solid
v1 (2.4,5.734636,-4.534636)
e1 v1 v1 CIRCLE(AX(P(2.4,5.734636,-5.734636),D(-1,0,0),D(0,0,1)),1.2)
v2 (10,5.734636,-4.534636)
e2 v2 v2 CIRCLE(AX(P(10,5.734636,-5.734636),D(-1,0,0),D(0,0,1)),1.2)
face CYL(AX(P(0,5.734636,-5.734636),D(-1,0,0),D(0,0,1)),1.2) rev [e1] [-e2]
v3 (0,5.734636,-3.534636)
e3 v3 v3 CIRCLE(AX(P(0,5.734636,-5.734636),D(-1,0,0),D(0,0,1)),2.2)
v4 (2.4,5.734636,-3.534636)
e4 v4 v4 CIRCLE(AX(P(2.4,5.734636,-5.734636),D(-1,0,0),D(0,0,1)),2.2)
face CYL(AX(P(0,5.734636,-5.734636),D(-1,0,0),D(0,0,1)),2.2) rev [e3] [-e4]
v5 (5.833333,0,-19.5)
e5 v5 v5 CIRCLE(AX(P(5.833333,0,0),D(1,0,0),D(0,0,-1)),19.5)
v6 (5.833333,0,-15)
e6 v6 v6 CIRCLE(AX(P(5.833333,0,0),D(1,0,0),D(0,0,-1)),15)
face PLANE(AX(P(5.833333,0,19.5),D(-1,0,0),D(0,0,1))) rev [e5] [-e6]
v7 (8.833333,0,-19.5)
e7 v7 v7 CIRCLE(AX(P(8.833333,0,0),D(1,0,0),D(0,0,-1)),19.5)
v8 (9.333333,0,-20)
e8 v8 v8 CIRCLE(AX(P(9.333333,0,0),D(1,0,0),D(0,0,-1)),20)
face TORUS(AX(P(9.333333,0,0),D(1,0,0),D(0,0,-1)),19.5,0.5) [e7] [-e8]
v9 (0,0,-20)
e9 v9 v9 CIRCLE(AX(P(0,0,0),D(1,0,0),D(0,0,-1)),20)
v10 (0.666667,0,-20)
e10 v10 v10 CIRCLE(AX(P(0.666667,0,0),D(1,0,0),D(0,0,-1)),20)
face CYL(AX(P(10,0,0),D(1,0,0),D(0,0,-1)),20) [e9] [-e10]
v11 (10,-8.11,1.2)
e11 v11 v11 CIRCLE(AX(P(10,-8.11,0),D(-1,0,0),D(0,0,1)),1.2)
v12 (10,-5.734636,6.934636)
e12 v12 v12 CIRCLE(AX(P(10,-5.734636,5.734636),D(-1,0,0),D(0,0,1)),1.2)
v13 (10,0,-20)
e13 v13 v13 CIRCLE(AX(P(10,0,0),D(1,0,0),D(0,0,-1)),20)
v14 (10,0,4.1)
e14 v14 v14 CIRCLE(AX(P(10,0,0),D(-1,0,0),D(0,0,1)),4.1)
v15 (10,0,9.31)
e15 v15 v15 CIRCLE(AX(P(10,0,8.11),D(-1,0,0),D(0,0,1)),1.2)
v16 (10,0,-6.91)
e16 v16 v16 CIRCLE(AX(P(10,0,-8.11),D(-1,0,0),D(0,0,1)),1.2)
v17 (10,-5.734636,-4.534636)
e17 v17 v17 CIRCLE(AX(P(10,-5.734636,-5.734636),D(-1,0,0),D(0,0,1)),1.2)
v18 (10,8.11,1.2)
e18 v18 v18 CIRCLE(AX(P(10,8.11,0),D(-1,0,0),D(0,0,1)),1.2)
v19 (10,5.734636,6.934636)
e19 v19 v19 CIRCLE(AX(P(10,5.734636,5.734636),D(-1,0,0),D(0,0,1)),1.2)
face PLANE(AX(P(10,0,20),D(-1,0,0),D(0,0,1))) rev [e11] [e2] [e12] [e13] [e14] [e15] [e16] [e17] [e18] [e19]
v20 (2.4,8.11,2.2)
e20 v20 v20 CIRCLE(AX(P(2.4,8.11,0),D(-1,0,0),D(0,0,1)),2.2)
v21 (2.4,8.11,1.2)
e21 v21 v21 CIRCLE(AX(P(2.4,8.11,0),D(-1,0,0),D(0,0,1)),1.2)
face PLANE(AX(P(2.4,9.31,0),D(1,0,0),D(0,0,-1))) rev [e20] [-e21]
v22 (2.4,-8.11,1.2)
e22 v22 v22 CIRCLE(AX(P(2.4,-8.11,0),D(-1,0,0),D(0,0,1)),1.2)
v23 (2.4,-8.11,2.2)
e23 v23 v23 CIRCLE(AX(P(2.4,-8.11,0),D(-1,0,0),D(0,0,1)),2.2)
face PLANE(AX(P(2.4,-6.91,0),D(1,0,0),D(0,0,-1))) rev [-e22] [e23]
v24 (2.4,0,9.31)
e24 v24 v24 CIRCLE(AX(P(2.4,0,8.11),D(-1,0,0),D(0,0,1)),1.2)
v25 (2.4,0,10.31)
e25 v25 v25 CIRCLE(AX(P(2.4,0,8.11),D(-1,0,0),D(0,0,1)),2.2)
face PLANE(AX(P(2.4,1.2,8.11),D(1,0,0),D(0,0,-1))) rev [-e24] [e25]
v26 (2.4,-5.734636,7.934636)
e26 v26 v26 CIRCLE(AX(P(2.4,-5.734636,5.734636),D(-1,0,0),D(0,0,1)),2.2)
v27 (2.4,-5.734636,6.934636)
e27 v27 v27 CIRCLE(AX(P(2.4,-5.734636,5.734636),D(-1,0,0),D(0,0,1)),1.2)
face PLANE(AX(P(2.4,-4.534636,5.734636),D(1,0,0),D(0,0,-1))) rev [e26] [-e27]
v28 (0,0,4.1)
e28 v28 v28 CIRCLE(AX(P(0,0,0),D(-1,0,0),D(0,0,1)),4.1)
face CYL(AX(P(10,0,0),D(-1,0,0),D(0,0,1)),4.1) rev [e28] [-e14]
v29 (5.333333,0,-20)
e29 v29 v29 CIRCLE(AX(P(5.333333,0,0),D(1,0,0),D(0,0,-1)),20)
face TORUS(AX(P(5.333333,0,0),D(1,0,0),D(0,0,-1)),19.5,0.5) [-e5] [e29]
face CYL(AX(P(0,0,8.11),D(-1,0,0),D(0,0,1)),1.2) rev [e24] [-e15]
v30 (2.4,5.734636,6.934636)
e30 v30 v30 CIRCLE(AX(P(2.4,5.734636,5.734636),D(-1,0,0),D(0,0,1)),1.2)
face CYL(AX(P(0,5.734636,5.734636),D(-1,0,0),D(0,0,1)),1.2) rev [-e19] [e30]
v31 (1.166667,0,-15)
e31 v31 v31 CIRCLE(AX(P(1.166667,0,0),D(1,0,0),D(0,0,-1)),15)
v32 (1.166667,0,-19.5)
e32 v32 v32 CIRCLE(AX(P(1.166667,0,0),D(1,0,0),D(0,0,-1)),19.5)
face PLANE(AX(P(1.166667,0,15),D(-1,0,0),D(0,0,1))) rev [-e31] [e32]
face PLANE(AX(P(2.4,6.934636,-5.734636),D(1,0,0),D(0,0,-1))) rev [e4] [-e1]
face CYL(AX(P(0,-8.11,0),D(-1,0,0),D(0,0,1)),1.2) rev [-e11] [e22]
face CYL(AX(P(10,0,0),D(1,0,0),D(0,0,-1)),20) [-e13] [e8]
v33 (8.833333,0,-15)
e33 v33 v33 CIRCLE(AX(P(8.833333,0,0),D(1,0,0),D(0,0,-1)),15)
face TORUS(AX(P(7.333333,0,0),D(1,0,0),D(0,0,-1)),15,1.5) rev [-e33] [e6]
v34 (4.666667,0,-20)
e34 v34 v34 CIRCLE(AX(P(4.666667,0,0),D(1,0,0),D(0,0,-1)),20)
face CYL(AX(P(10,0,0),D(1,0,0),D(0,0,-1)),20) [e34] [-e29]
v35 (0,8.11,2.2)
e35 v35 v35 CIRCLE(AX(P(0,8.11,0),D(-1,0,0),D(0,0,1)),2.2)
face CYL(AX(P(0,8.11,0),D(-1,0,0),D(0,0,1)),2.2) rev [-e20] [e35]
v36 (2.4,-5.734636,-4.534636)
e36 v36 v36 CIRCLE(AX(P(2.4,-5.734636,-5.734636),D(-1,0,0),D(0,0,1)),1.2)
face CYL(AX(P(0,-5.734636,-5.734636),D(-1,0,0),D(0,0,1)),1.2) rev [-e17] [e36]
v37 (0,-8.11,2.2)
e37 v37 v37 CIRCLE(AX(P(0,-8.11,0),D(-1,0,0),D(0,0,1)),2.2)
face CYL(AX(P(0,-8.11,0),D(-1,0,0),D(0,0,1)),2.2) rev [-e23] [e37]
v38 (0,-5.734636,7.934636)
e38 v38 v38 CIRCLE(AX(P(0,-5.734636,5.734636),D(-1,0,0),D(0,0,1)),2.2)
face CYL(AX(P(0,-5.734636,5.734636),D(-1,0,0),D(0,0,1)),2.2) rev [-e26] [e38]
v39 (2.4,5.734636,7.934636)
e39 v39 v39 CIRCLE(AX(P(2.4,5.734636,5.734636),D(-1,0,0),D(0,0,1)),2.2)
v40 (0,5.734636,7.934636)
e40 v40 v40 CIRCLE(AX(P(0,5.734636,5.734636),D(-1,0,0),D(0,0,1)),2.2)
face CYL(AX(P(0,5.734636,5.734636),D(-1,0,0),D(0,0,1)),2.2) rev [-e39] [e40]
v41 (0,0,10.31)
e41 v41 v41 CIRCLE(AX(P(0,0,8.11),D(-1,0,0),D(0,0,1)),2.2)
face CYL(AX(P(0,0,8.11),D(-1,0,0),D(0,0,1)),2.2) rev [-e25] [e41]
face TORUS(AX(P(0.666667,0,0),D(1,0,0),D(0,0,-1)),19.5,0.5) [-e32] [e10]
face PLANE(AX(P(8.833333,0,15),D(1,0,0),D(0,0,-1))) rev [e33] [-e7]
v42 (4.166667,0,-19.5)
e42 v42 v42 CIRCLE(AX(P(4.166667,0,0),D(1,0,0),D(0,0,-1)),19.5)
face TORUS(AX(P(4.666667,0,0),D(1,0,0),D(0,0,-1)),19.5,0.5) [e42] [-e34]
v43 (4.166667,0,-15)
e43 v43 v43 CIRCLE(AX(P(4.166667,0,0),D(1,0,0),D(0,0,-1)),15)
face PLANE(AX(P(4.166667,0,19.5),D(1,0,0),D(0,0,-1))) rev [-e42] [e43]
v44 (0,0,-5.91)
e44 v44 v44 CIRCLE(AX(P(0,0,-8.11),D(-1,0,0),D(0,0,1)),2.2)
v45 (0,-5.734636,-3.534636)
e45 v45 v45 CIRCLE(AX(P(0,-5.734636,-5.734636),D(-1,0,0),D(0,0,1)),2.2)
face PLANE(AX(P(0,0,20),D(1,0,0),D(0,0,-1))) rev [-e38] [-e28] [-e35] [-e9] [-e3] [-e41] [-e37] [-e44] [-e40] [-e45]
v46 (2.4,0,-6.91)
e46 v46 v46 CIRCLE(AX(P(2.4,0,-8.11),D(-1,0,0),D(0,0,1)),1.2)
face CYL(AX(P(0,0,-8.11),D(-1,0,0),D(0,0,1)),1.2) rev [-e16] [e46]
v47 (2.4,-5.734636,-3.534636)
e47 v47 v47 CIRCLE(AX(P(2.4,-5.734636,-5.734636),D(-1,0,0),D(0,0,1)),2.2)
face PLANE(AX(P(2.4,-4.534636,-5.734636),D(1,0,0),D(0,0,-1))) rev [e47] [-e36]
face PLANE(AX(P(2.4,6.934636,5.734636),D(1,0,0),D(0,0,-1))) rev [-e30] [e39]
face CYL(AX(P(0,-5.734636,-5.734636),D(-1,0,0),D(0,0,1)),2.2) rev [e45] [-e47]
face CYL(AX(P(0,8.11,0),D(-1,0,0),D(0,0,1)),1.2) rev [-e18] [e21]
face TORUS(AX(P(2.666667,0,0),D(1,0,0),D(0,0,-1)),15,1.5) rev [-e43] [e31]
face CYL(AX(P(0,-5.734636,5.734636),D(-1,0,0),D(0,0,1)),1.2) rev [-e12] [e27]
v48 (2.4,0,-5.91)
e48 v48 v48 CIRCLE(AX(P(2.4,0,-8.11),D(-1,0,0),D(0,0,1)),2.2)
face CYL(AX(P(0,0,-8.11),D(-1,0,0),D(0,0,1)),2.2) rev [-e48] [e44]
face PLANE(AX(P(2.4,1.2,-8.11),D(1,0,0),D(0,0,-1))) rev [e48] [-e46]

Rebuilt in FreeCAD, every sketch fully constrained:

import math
import FreeCAD as App
import Part
import Sketcher
from FreeCAD import Vector

doc = App.newDocument("Part")
body = doc.addObject("PartDesign::Body", "Body")

# Sketch on XZ plane
sketch1 = body.newObject("Sketcher::SketchObject", "Sketch")
sketch1.AttachmentSupport = (doc.getObject("XZ_Plane"), [""])
sketch1.MapMode = "FlatFace"
sketch1.addGeometry([
    Part.LineSegment(Vector(10, 0, 0), Vector(0, 0, 0)),  # 0
    Part.LineSegment(Vector(0, 0, 0), Vector(0, 20, 0)),  # 1
    Part.LineSegment(Vector(0, 20, 0), Vector(0.67, 20, 0)),  # 2
    Part.ArcOfCircle(Part.Circle(Vector(0.67, 19.5, 0), Vector(0, 0, 1), 0.5), math.radians(0), math.radians(90)),  # 3
    Part.LineSegment(Vector(1.17, 19.5, 0), Vector(1.17, 15, 0)),  # 4
    Part.ArcOfCircle(Part.Circle(Vector(2.67, 15, 0), Vector(0, 0, 1), 1.5), math.radians(180), math.radians(360)),  # 5
    Part.LineSegment(Vector(4.17, 15, 0), Vector(4.17, 19.5, 0)),  # 6
    Part.ArcOfCircle(Part.Circle(Vector(4.67, 19.5, 0), Vector(0, 0, 1), 0.5), math.radians(90), math.radians(180)),  # 7
    Part.LineSegment(Vector(4.67, 20, 0), Vector(5.33, 20, 0)),  # 8
    Part.ArcOfCircle(Part.Circle(Vector(5.33, 19.5, 0), Vector(0, 0, 1), 0.5), math.radians(0), math.radians(90)),  # 9
    Part.LineSegment(Vector(5.83, 19.5, 0), Vector(5.83, 15, 0)),  # 10
    Part.ArcOfCircle(Part.Circle(Vector(7.33, 15, 0), Vector(0, 0, 1), 1.5), math.radians(180), math.radians(360)),  # 11
    Part.LineSegment(Vector(8.83, 15, 0), Vector(8.83, 19.5, 0)),  # 12
    Part.ArcOfCircle(Part.Circle(Vector(9.33, 19.5, 0), Vector(0, 0, 1), 0.5), math.radians(90), math.radians(180)),  # 13
    Part.LineSegment(Vector(9.33, 20, 0), Vector(10, 20, 0)),  # 14
    Part.LineSegment(Vector(10, 20, 0), Vector(10, 0, 0)),  # 15
], False)
sketch1.addConstraint([
    Sketcher.Constraint("Coincident", 0, 2, 1, 1),
    Sketcher.Constraint("Coincident", 1, 2, 2, 1),
    Sketcher.Constraint("Tangent", 2, 2, 3, 2),
    Sketcher.Constraint("Tangent", 3, 1, 4, 1),
    Sketcher.Constraint("Tangent", 4, 2, 5, 1),
    Sketcher.Constraint("Tangent", 5, 2, 6, 1),
    Sketcher.Constraint("Tangent", 6, 2, 7, 2),
    Sketcher.Constraint("Tangent", 7, 1, 8, 1),
    Sketcher.Constraint("Tangent", 8, 2, 9, 2),
    Sketcher.Constraint("Tangent", 9, 1, 10, 1),
    Sketcher.Constraint("Tangent", 10, 2, 11, 1),
    Sketcher.Constraint("Tangent", 11, 2, 12, 1),
    Sketcher.Constraint("Tangent", 12, 2, 13, 2),
    Sketcher.Constraint("Tangent", 13, 1, 14, 1),
    Sketcher.Constraint("Coincident", 14, 2, 15, 1),
    Sketcher.Constraint("Coincident", 15, 2, 0, 1),
    Sketcher.Constraint("Horizontal", 0),
    Sketcher.Constraint("Vertical", 1),
    Sketcher.Constraint("Horizontal", 2),
    Sketcher.Constraint("Vertical", 4),
    Sketcher.Constraint("Vertical", 6),
    Sketcher.Constraint("Horizontal", 8),
    Sketcher.Constraint("Vertical", 10),
    Sketcher.Constraint("Vertical", 12),
    Sketcher.Constraint("Horizontal", 14),
    Sketcher.Constraint("Vertical", 15),
    Sketcher.Constraint("Coincident", 0, 2, -1, 1),
    Sketcher.Constraint("Equal", 3, 7),
    Sketcher.Constraint("Equal", 7, 9),
    Sketcher.Constraint("Equal", 5, 11),
    Sketcher.Constraint("Equal", 9, 13),
    Sketcher.Constraint("Horizontal", 3, 3, 7, 3),
    Sketcher.Constraint("Horizontal", 5, 3, 11, 3),
    Sketcher.Constraint("Horizontal", 9, 3, 13, 3),
    Sketcher.Constraint("Equal", 2, 8),
    Sketcher.Constraint("Equal", 8, 14),
    Sketcher.Constraint("Radius", 3, 0.5),
    Sketcher.Constraint("Radius", 5, 1.5),
    Sketcher.Constraint("DistanceX", 0, 2, 0, 1, 10.0),
    Sketcher.Constraint("DistanceY", 1, 1, 1, 2, 20.0),
    Sketcher.Constraint("DistanceY", 4, 2, 4, 1, 4.5),
])
revolution = body.newObject("PartDesign::Revolution", "Revolution")
revolution.Profile = sketch1
revolution.ReferenceAxis = (sketch1, ["H_Axis"])
revolution.Angle = 360

# Sketch on YZ plane
sketch2 = body.newObject("Sketcher::SketchObject", "Sketch001")
sketch2.AttachmentSupport = (doc.getObject("YZ_Plane"), [""])
sketch2.MapMode = "FlatFace"
sketch2.addGeometry([
    Part.Circle(Vector(0, 8.1, 0), Vector(0, 0, 1), 1.2),  # 0
    Part.Circle(Vector(5.7, 5.7, 0), Vector(0, 0, 1), 1.2),  # 1
    Part.Circle(Vector(8.1, 0, 0), Vector(0, 0, 1), 1.2),  # 2
    Part.Circle(Vector(5.7, -5.7, 0), Vector(0, 0, 1), 1.2),  # 3
    Part.Circle(Vector(0, -8.1, 0), Vector(0, 0, 1), 1.2),  # 4
    Part.Circle(Vector(-5.7, -5.7, 0), Vector(0, 0, 1), 1.2),  # 5
    Part.Circle(Vector(-8.1, 0, 0), Vector(0, 0, 1), 1.2),  # 6
    Part.Circle(Vector(-5.7, 5.7, 0), Vector(0, 0, 1), 1.2),  # 7
], False)
sketch2.addConstraint([
    Sketcher.Constraint("Equal", 0, 1),
    Sketcher.Constraint("Equal", 1, 2),
    Sketcher.Constraint("Equal", 2, 3),
    Sketcher.Constraint("Equal", 3, 4),
    Sketcher.Constraint("Equal", 4, 5),
    Sketcher.Constraint("Equal", 5, 6),
    Sketcher.Constraint("Equal", 6, 7),
    Sketcher.Constraint("Symmetric", 0, 3, 4, 3, -1, 1),
    Sketcher.Constraint("Symmetric", 1, 3, 5, 3, -1, 1),
    Sketcher.Constraint("Symmetric", 2, 3, 6, 3, -1, 1),
    Sketcher.Constraint("Symmetric", 3, 3, 7, 3, -1, 1),
    Sketcher.Constraint("Symmetric", 3, 3, 5, 3, -2),
    Sketcher.Constraint("PointOnObject", 0, 3, -2),
    Sketcher.Constraint("PointOnObject", 2, 3, -1),
    Sketcher.Constraint("Diameter", 0, 2.4),
    Sketcher.Constraint("DistanceY", -1, 1, 0, 3, 8.11),
    Sketcher.Constraint("DistanceX", -1, 1, 2, 3, 8.11),
    Sketcher.Constraint("DistanceY", 3, 3, 1, 3, 11.469272),
    Sketcher.Constraint("DistanceX", 5, 3, 3, 3, 11.469272),
])
doc.recompute()
hole = body.newObject("PartDesign::Hole", "Hole")
hole.Profile = sketch2
hole.ThreadType = "None"
hole.Diameter = 2.4
hole.DepthType = "ThroughAll"
hole.HoleCutType = "Counterbore"
hole.HoleCutDiameter = 4.4
hole.HoleCutDepth = 2.4
hole.Reversed = True

# Sketch on YZ plane
sketch3 = body.newObject("Sketcher::SketchObject", "Sketch002")
sketch3.AttachmentSupport = (doc.getObject("YZ_Plane"), [""])
sketch3.MapMode = "FlatFace"
sketch3.addGeometry(Part.Circle(Vector(0, 0, 0), Vector(0, 0, 1), 4.1), False)
sketch3.addConstraint([
    Sketcher.Constraint("Coincident", 0, 3, -1, 1),
    Sketcher.Constraint("Diameter", 0, 8.2),
])
pocket1 = body.newObject("PartDesign::Pocket", "Pocket")
pocket1.Profile = sketch3
pocket1.Length = 10
pocket1.Reversed = True

doc.recompute()
